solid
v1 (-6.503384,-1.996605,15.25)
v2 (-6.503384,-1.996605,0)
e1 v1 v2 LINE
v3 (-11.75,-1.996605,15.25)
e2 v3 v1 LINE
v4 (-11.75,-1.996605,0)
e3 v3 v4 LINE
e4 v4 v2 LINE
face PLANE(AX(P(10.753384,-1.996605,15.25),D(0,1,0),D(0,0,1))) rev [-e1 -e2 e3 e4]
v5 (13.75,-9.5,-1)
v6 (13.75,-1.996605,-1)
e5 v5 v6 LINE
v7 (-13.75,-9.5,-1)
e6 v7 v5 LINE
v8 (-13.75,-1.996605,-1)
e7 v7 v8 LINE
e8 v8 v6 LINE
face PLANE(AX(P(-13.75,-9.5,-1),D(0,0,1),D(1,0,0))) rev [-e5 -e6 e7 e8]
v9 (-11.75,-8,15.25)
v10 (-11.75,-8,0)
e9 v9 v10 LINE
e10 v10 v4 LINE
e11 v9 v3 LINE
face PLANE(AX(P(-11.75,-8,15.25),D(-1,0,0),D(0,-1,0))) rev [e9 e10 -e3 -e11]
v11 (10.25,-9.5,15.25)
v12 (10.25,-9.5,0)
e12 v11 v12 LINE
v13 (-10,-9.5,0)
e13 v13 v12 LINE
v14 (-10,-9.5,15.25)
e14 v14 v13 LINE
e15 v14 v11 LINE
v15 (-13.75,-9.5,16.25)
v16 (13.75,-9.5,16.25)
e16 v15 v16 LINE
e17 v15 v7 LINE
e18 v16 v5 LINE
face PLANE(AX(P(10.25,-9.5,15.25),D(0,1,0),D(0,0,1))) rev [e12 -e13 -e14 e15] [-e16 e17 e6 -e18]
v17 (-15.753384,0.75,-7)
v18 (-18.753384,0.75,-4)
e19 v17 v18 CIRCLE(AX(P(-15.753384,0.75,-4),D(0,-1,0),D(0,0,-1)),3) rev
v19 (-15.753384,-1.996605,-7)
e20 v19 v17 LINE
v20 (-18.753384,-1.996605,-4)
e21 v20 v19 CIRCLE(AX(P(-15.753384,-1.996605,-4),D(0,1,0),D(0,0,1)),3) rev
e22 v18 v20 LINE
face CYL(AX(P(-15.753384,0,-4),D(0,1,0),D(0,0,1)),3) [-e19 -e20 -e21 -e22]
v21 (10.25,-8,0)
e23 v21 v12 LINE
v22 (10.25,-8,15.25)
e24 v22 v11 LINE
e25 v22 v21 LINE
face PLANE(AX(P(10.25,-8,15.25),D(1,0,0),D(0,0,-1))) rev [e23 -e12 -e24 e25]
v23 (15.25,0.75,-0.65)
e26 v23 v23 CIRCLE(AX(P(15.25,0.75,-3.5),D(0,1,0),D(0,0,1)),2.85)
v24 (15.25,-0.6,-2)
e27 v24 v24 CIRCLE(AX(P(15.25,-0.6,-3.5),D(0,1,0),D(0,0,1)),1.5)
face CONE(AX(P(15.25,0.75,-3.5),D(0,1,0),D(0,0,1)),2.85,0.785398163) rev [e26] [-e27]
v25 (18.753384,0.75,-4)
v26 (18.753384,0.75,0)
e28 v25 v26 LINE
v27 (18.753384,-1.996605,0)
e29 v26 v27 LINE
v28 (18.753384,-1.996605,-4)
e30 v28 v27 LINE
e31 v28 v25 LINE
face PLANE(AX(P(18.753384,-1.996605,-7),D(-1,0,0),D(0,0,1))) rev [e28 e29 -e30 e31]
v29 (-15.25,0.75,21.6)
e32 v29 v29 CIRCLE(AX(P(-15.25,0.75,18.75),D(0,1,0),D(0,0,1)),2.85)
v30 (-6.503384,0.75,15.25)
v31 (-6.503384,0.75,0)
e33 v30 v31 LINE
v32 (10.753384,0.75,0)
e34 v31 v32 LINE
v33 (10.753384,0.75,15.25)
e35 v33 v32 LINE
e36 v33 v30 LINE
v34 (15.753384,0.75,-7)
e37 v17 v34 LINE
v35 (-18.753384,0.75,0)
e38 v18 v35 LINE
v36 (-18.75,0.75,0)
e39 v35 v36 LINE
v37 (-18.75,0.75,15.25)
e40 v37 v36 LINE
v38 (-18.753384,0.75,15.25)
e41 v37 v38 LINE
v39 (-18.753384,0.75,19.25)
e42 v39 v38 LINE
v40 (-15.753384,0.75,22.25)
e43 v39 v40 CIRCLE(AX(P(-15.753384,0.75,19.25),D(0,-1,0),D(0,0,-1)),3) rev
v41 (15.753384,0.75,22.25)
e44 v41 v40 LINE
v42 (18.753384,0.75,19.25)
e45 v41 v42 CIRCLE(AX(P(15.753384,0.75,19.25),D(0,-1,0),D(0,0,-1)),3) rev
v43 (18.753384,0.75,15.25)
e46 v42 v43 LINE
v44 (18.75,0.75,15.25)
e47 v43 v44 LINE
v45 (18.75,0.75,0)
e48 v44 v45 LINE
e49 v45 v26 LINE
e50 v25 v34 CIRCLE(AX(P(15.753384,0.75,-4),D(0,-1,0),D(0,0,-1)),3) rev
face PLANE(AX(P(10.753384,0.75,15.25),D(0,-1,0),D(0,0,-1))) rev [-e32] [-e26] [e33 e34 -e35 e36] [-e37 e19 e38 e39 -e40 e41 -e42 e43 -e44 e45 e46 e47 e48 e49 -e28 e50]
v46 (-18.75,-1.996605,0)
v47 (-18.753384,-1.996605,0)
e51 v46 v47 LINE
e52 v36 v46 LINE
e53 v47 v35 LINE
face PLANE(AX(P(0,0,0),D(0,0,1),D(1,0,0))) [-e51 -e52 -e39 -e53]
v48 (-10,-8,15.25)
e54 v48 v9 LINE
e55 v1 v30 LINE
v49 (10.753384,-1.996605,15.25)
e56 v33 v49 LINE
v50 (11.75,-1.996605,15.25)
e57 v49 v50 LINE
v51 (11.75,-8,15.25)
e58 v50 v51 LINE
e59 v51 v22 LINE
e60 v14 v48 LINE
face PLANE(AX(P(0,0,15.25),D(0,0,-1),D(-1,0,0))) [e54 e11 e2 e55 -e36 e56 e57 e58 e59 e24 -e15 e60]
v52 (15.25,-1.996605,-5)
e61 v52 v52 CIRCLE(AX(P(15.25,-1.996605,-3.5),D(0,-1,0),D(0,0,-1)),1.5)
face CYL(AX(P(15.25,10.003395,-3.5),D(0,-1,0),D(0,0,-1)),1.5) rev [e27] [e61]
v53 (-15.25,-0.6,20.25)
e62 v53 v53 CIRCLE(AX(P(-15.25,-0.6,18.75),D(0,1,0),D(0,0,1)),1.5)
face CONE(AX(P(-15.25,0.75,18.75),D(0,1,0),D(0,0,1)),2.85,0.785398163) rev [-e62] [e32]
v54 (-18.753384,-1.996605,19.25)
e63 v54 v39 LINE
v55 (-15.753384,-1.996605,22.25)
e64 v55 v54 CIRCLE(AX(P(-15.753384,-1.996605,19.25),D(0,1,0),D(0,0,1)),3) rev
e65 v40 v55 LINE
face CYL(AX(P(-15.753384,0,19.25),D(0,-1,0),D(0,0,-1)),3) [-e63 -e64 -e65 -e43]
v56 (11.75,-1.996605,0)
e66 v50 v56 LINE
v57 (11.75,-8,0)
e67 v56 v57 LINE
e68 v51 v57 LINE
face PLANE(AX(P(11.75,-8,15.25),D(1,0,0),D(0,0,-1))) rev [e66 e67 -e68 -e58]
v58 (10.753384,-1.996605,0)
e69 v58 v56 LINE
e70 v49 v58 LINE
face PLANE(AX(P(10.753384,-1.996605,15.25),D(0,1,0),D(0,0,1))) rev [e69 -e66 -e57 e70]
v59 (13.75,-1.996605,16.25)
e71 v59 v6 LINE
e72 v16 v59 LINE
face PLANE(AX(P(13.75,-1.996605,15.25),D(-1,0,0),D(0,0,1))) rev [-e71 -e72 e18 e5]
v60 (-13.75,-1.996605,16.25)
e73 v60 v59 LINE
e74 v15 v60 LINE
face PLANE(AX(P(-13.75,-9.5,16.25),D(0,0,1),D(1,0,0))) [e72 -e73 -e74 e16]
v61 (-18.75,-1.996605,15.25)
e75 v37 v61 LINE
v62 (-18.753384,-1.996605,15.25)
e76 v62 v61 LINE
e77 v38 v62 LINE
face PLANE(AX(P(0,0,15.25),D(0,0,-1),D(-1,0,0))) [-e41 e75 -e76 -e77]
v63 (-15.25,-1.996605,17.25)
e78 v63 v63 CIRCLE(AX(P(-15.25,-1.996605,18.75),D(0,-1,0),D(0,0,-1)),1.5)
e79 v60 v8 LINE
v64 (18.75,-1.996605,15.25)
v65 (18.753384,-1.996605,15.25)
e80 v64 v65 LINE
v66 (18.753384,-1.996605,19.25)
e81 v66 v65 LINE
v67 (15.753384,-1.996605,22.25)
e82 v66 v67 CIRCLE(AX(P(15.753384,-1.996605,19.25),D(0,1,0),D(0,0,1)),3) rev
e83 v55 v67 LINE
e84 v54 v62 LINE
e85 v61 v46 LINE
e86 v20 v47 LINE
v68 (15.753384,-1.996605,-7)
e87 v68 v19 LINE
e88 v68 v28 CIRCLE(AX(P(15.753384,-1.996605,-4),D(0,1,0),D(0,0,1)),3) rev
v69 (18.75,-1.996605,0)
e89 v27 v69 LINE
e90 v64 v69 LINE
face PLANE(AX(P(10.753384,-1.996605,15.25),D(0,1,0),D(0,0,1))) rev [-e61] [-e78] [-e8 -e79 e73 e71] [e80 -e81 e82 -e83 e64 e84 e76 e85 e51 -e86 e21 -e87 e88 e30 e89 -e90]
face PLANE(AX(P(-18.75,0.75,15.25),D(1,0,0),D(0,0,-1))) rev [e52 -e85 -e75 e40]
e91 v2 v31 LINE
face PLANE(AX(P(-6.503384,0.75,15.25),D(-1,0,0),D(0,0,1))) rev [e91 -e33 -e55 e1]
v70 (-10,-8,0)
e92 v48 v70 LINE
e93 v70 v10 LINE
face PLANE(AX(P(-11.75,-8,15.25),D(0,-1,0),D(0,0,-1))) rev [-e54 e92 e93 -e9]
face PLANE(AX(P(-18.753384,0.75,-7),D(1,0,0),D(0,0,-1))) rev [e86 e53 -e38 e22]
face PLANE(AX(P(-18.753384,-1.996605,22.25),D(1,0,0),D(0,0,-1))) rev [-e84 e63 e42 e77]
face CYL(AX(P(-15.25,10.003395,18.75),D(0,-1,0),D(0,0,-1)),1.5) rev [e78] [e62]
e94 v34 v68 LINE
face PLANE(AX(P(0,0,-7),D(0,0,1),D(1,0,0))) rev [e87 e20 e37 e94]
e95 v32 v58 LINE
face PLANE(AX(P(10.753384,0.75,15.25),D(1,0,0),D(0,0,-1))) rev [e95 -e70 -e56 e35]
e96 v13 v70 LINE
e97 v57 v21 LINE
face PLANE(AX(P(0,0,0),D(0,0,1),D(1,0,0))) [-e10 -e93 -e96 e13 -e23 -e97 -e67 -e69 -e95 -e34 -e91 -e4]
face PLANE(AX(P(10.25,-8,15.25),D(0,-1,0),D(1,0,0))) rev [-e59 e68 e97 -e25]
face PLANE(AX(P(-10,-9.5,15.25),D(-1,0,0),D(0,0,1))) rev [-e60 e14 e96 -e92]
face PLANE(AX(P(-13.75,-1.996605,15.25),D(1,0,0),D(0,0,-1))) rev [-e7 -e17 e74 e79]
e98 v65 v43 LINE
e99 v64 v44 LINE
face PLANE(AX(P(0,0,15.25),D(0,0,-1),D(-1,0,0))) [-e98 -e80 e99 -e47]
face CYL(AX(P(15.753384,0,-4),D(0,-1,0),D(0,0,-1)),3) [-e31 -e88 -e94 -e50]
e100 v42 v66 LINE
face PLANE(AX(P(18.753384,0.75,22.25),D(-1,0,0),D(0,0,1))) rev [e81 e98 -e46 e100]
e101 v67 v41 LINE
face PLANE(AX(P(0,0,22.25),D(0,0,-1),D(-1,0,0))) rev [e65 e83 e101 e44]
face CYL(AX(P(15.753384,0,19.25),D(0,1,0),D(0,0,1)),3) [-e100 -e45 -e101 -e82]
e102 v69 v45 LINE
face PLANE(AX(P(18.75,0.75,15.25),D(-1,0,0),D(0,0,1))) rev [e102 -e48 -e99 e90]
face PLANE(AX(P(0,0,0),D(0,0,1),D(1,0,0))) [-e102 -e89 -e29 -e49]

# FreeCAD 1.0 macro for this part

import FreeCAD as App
import Part
import Sketcher

V = App.Vector
Q = App.Units.Quantity


def edges_at(feature, points):
    """Names of the edges that pass closest to the given points."""
    edges = feature.Shape.Edges
    near = lambda p: min(range(len(edges)), key=lambda i: edges[i].distToShape(Part.Vertex(*p))[0])
    return sorted({f"Edge{near(p) + 1}" for p in points})

doc = App.newDocument("Part")
body = doc.addObject("PartDesign::Body", "Body")

sketch1 = doc.addObject("Sketcher::SketchObject", "Sketch")
body.addObject(sketch1)
sketch1.AttachmentSupport = (doc.XY_Plane, [""])
sketch1.MapMode = "FlatFace"
sketch1.addGeometry([
    Part.LineSegment(V(10.2, -8, 0), V(10.2, -9.5, 0)),
    Part.LineSegment(V(10.2, -9.5, 0), V(13.8, -9.5, 0)),
    Part.LineSegment(V(13.8, -9.5, 0), V(13.8, -2, 0)),
    Part.LineSegment(V(13.8, -2, 0), V(18.8, -2, 0)),
    Part.LineSegment(V(18.8, -2, 0), V(18.8, 0.8, 0)),
    Part.LineSegment(V(18.8, 0.8, 0), V(10.8, 0.8, 0)),
    Part.LineSegment(V(10.8, 0.8, 0), V(10.8, -2, 0)),
    Part.LineSegment(V(10.8, -2, 0), V(11.8, -2, 0)),
    Part.LineSegment(V(11.8, -2, 0), V(11.8, -8, 0)),
    Part.LineSegment(V(11.8, -8, 0), V(10.2, -8, 0)),
], False)
sketch1.addConstraint([
    Sketcher.Constraint("Coincident", 0, 2, 1, 1),
    Sketcher.Constraint("Coincident", 1, 2, 2, 1),
    Sketcher.Constraint("Coincident", 2, 2, 3, 1),
    Sketcher.Constraint("Coincident", 3, 2, 4, 1),
    Sketcher.Constraint("Coincident", 4, 2, 5, 1),
    Sketcher.Constraint("Coincident", 5, 2, 6, 1),
    Sketcher.Constraint("Coincident", 6, 2, 7, 1),
    Sketcher.Constraint("Coincident", 7, 2, 8, 1),
    Sketcher.Constraint("Coincident", 8, 2, 9, 1),
    Sketcher.Constraint("Coincident", 9, 2, 0, 1),
    Sketcher.Constraint("Vertical", 0),
    Sketcher.Constraint("Horizontal", 1),
    Sketcher.Constraint("Vertical", 2),
    Sketcher.Constraint("Horizontal", 3),
    Sketcher.Constraint("Vertical", 4),
    Sketcher.Constraint("Horizontal", 5),
    Sketcher.Constraint("Vertical", 6),
    Sketcher.Constraint("Horizontal", 7),
    Sketcher.Constraint("Vertical", 8),
    Sketcher.Constraint("Horizontal", 9),
    Sketcher.Constraint("Horizontal", 3, 2, 6, 2),
    Sketcher.Constraint("Equal", 9, 0),
    Sketcher.Constraint("DistanceX", 3, 1, 3, 2, Q("5 mm")),
    Sketcher.Constraint("DistanceX", 1, 1, 1, 2, Q("3.5 mm")),
    Sketcher.Constraint("DistanceX", 9, 2, 9, 1, Q("1.5 mm")),
    Sketcher.Constraint("DistanceY", 8, 2, -1, 1, Q("8 mm")),
    Sketcher.Constraint("DistanceX", -1, 1, 0, 2, Q("10.25 mm")),
    Sketcher.Constraint("DistanceY", -1, 1, 4, 2, Q("0.75 mm")),
    Sketcher.Constraint("DistanceX", 5, 2, 5, 1, Q("7.996616 mm")),
    Sketcher.Constraint("DistanceY", 2, 1, 2, 2, Q("7.503395 mm")),
])
pad1 = doc.addObject("PartDesign::Pad", "Pad")
body.addObject(pad1)
pad1.Profile = sketch1
pad1.Length = 15.25
body2 = doc.addObject("PartDesign::Body", "Body001")

sketch2 = doc.addObject("Sketcher::SketchObject", "Sketch001")
body2.addObject(sketch2)
sketch2.AttachmentSupport = (doc.getObject("XY_Plane001"), [""])
sketch2.MapMode = "FlatFace"
sketch2.addGeometry([
    Part.LineSegment(V(-10, -8, 0), V(-11.8, -8, 0)),
    Part.LineSegment(V(-11.8, -8, 0), V(-11.8, -2, 0)),
    Part.LineSegment(V(-11.8, -2, 0), V(-6.5, -2, 0)),
    Part.LineSegment(V(-6.5, -2, 0), V(-6.5, 0.8, 0)),
    Part.LineSegment(V(-6.5, 0.8, 0), V(-18.8, 0.8, 0)),
    Part.LineSegment(V(-18.8, 0.8, 0), V(-18.8, -2, 0)),
    Part.LineSegment(V(-18.8, -2, 0), V(-13.8, -2, 0)),
    Part.LineSegment(V(-13.8, -2, 0), V(-13.8, -9.5, 0)),
    Part.LineSegment(V(-13.8, -9.5, 0), V(-10, -9.5, 0)),
    Part.LineSegment(V(-10, -9.5, 0), V(-10, -8, 0)),
], False)
sketch2.addConstraint([
    Sketcher.Constraint("Coincident", 0, 2, 1, 1),
    Sketcher.Constraint("Coincident", 1, 2, 2, 1),
    Sketcher.Constraint("Coincident", 2, 2, 3, 1),
    Sketcher.Constraint("Coincident", 3, 2, 4, 1),
    Sketcher.Constraint("Coincident", 4, 2, 5, 1),
    Sketcher.Constraint("Coincident", 5, 2, 6, 1),
    Sketcher.Constraint("Coincident", 6, 2, 7, 1),
    Sketcher.Constraint("Coincident", 7, 2, 8, 1),
    Sketcher.Constraint("Coincident", 8, 2, 9, 1),
    Sketcher.Constraint("Coincident", 9, 2, 0, 1),
    Sketcher.Constraint("Horizontal", 0),
    Sketcher.Constraint("Vertical", 1),
    Sketcher.Constraint("Horizontal", 2),
    Sketcher.Constraint("Vertical", 3),
    Sketcher.Constraint("Horizontal", 4),
    Sketcher.Constraint("Vertical", 5),
    Sketcher.Constraint("Horizontal", 6),
    Sketcher.Constraint("Vertical", 7),
    Sketcher.Constraint("Horizontal", 8),
    Sketcher.Constraint("Vertical", 9),
    Sketcher.Constraint("Horizontal", 2, 2, 5, 2),
    Sketcher.Constraint("DistanceX", 6, 1, 6, 2, Q("5 mm")),
    Sketcher.Constraint("DistanceY", 9, 1, 9, 2, Q("1.5 mm")),
    Sketcher.Constraint("DistanceY", 0, 2, -1, 1, Q("8 mm")),
    Sketcher.Constraint("DistanceX", 8, 2, -1, 1, Q("10 mm")),
    Sketcher.Constraint("DistanceX", 4, 2, 1, 2, Q("7 mm")),
    Sketcher.Constraint("DistanceX", 0, 2, 0, 1, Q("1.75 mm")),
    Sketcher.Constraint("DistanceY", -1, 1, 3, 2, Q("0.75 mm")),
    Sketcher.Constraint("DistanceX", 2, 1, 2, 2, Q("5.246616 mm")),
    Sketcher.Constraint("DistanceY", 1, 1, 1, 2, Q("6.003395 mm")),
])
pad2 = doc.addObject("PartDesign::Pad", "Pad001")
body2.addObject(pad2)
pad2.Profile = sketch2
pad2.Length = 15.25
body.AllowCompound = True
doc.recompute()

boolean = doc.addObject("PartDesign::Boolean", "Boolean")
body.addObject(boolean)
boolean.Type = "Fuse"
boolean.addObjects([body2])

sketch3 = doc.addObject("Sketcher::SketchObject", "Sketch002")
body.addObject(sketch3)
sketch3.AttachmentSupport = (doc.XY_Plane, [""])
sketch3.MapMode = "FlatFace"
sketch3.AttachmentOffset = App.Placement(V(0, 0, 15.25), App.Rotation())
sketch3.addGeometry([
    Part.LineSegment(V(-18.8, 0.8, 0), V(-18.8, -2, 0)),
    Part.LineSegment(V(-18.8, -2, 0), V(18.8, -2, 0)),
    Part.LineSegment(V(18.8, -2, 0), V(18.8, 0.8, 0)),
    Part.LineSegment(V(18.8, 0.8, 0), V(-18.8, 0.8, 0)),
], False)
sketch3.addConstraint([
    Sketcher.Constraint("Coincident", 0, 2, 1, 1),
    Sketcher.Constraint("Coincident", 1, 2, 2, 1),
    Sketcher.Constraint("Coincident", 2, 2, 3, 1),
    Sketcher.Constraint("Coincident", 3, 2, 0, 1),
    Sketcher.Constraint("Vertical", 0),
    Sketcher.Constraint("Horizontal", 1),
    Sketcher.Constraint("Vertical", 2),
    Sketcher.Constraint("Horizontal", 3),
    Sketcher.Constraint("DistanceY", -1, 1, 2, 2, Q("0.75 mm")),
    Sketcher.Constraint("DistanceX", 1, 1, 1, 2, Q("37.506768 mm")),
    Sketcher.Constraint("DistanceY", 0, 2, 0, 1, Q("2.746605 mm")),
    Sketcher.Constraint("DistanceX", 0, 2, -1, 1, Q("18.753384 mm")),
])
pad3 = doc.addObject("PartDesign::Pad", "Pad002")
body.addObject(pad3)
pad3.Profile = sketch3
pad3.Length = 7

sketch4 = doc.addObject("Sketcher::SketchObject", "Sketch003")
body.addObject(sketch4)
sketch4.AttachmentSupport = (doc.XY_Plane, [""])
sketch4.MapMode = "FlatFace"
sketch4.addGeometry([
    Part.LineSegment(V(18.8, 0.8, 0), V(18.8, -2, 0)),
    Part.LineSegment(V(18.8, -2, 0), V(-18.8, -2, 0)),
    Part.LineSegment(V(-18.8, -2, 0), V(-18.8, 0.8, 0)),
    Part.LineSegment(V(-18.8, 0.8, 0), V(18.8, 0.8, 0)),
], False)
sketch4.addConstraint([
    Sketcher.Constraint("Coincident", 0, 2, 1, 1),
    Sketcher.Constraint("Coincident", 1, 2, 2, 1),
    Sketcher.Constraint("Coincident", 2, 2, 3, 1),
    Sketcher.Constraint("Coincident", 3, 2, 0, 1),
    Sketcher.Constraint("Vertical", 0),
    Sketcher.Constraint("Horizontal", 1),
    Sketcher.Constraint("Vertical", 2),
    Sketcher.Constraint("Horizontal", 3),
    Sketcher.Constraint("DistanceY", -1, 1, 2, 2, Q("0.75 mm")),
    Sketcher.Constraint("DistanceX", 1, 2, 1, 1, Q("37.506768 mm")),
    Sketcher.Constraint("DistanceY", 0, 2, 0, 1, Q("2.746605 mm")),
    Sketcher.Constraint("DistanceX", -1, 1, 0, 2, Q("18.753384 mm")),
])
pad4 = doc.addObject("PartDesign::Pad", "Pad003")
body.addObject(pad4)
pad4.Profile = sketch4
pad4.Length = 7
pad4.Reversed = True

sketch5 = doc.addObject("Sketcher::SketchObject", "Sketch004")
body.addObject(sketch5)
sketch5.AttachmentSupport = (doc.XZ_Plane, [""])
sketch5.MapMode = "FlatFace"
sketch5.AttachmentOffset = App.Placement(V(0, 0, 1.996605), App.Rotation())
sketch5.addGeometry([
    Part.Circle(V(-15.2, 18.8, 0), V(0, 0, 1), 1.5),
    Part.Circle(V(15.2, -3.5, 0), V(0, 0, 1), 1.5),
], False)
sketch5.addConstraint([
    Sketcher.Constraint("Equal", 0, 1),
    Sketcher.Constraint("Diameter", 0, Q("3 mm")),
    Sketcher.Constraint("DistanceY", 1, 3, -1, 1, Q("3.5 mm")),
    Sketcher.Constraint("DistanceX", 0, 3, 1, 3, Q("30.5 mm")),
    Sketcher.Constraint("DistanceX", 0, 3, -1, 1, Q("15.25 mm")),
    Sketcher.Constraint("DistanceY", -1, 1, 0, 3, Q("18.75 mm")),
])
pocket1 = doc.addObject("PartDesign::Pocket", "Pocket")
body.addObject(pocket1)
pocket1.Profile = sketch5
pocket1.Length = 12
doc.recompute()

fillet = doc.addObject("PartDesign::Fillet", "Fillet")
body.addObject(fillet)
fillet.Base = (pocket1, edges_at(pocket1, [
    (-18.753, -0.623, 22.25),
    (18.753, -0.623, 22.25),
    (18.753, -0.623, -7),
    (-18.753, -0.623, -7),
]))
fillet.Radius = 3

sketch6 = doc.addObject("Sketcher::SketchObject", "Sketch005")
body.addObject(sketch6)
sketch6.AttachmentSupport = (doc.YZ_Plane, [""])
sketch6.MapMode = "FlatFace"
sketch6.AttachmentOffset = App.Placement(V(0, 0, -15.25), App.Rotation())
sketch6.addGeometry([
    Part.LineSegment(V(0.8, 18.8, 0), V(0.8, 21.6, 0)),
    Part.LineSegment(V(0.8, 21.6, 0), V(-2.1, 18.8, 0)),
    Part.LineSegment(V(-2.1, 18.8, 0), V(0.8, 18.8, 0)),
], False)
sketch6.addGeometry(Part.LineSegment(V(0.8, 18.8, 0), V(-2.1, 18.8, 0)), True)
sketch6.addConstraint([
    Sketcher.Constraint("Coincident", 0, 2, 1, 1),
    Sketcher.Constraint("Coincident", 1, 2, 2, 1),
    Sketcher.Constraint("Coincident", 2, 2, 0, 1),
    Sketcher.Constraint("Vertical", 0),
    Sketcher.Constraint("Horizontal", 2),
    Sketcher.Constraint("Horizontal", 3),
    Sketcher.Constraint("Coincident", 3, 1, 2, 2),
    Sketcher.Constraint("Equal", 2, 3),
    Sketcher.Constraint("Equal", 3, 0),
    Sketcher.Constraint("DistanceX", 2, 1, 2, 2, Q("2.85 mm")),
    Sketcher.Constraint("DistanceY", -1, 1, 0, 2, Q("21.6 mm")),
    Sketcher.Constraint("DistanceX", 1, 2, -1, 1, Q("2.1 mm")),
])
groove = doc.addObject("PartDesign::Groove", "Groove")
body.addObject(groove)
groove.Profile = sketch6
groove.ReferenceAxis = (sketch6, ["Axis0"])
groove.Angle = 360

sketch7 = doc.addObject("Sketcher::SketchObject", "Sketch006")
body.addObject(sketch7)
sketch7.AttachmentSupport = (doc.YZ_Plane, [""])
sketch7.MapMode = "FlatFace"
sketch7.AttachmentOffset = App.Placement(V(0, 0, 15.25), App.Rotation())
sketch7.addGeometry([
    Part.LineSegment(V(0.8, -3.5, 0), V(0.8, -0.7, 0)),
    Part.LineSegment(V(0.8, -0.7, 0), V(-2.1, -3.5, 0)),
    Part.LineSegment(V(-2.1, -3.5, 0), V(0.8, -3.5, 0)),
], False)
sketch7.addGeometry(Part.LineSegment(V(0.8, -3.5, 0), V(-2.1, -3.5, 0)), True)
sketch7.addConstraint([
    Sketcher.Constraint("Coincident", 0, 2, 1, 1),
    Sketcher.Constraint("Coincident", 1, 2, 2, 1),
    Sketcher.Constraint("Coincident", 2, 2, 0, 1),
    Sketcher.Constraint("Vertical", 0),
    Sketcher.Constraint("Horizontal", 2),
    Sketcher.Constraint("Horizontal", 3),
    Sketcher.Constraint("Coincident", 3, 1, 2, 2),
    Sketcher.Constraint("Equal", 2, 3),
    Sketcher.Constraint("Equal", 3, 0),
    Sketcher.Constraint("DistanceX", 2, 1, 2, 2, Q("2.85 mm")),
    Sketcher.Constraint("DistanceX", 1, 2, -1, 1, Q("2.1 mm")),
    Sketcher.Constraint("DistanceY", 1, 2, -1, 1, Q("3.5 mm")),
])
groove2 = doc.addObject("PartDesign::Groove", "Groove001")
body.addObject(groove2)
groove2.Profile = sketch7
groove2.ReferenceAxis = (sketch7, ["Axis0"])
groove2.Angle = 360

sketch8 = doc.addObject("Sketcher::SketchObject", "Sketch007")
body.addObject(sketch8)
sketch8.AttachmentSupport = (doc.XZ_Plane, [""])
sketch8.MapMode = "FlatFace"
sketch8.AttachmentOffset = App.Placement(V(0, 0, 1.996605), App.Rotation())
sketch8.addGeometry([
    Part.LineSegment(V(-13.8, 16.2, 0), V(-13.8, 15.2, 0)),
    Part.LineSegment(V(-13.8, 15.2, 0), V(13.8, 15.2, 0)),
    Part.LineSegment(V(13.8, 15.2, 0), V(13.8, 16.2, 0)),
    Part.LineSegment(V(13.8, 16.2, 0), V(-13.8, 16.2, 0)),
    Part.LineSegment(V(-13.8, 0, 0), V(-13.8, -1, 0)),
    Part.LineSegment(V(-13.8, -1, 0), V(13.8, -1, 0)),
    Part.LineSegment(V(13.8, -1, 0), V(13.8, 0, 0)),
    Part.LineSegment(V(13.8, 0, 0), V(-13.8, 0, 0)),
], False)
sketch8.addConstraint([
    Sketcher.Constraint("Coincident", 0, 2, 1, 1),
    Sketcher.Constraint("Coincident", 1, 2, 2, 1),
    Sketcher.Constraint("Coincident", 2, 2, 3, 1),
    Sketcher.Constraint("Coincident", 3, 2, 0, 1),
    Sketcher.Constraint("Coincident", 4, 2, 5, 1),
    Sketcher.Constraint("Coincident", 5, 2, 6, 1),
    Sketcher.Constraint("Coincident", 6, 2, 7, 1),
    Sketcher.Constraint("Coincident", 7, 2, 4, 1),
    Sketcher.Constraint("Vertical", 0),
    Sketcher.Constraint("Horizontal", 1),
    Sketcher.Constraint("Vertical", 2),
    Sketcher.Constraint("Horizontal", 3),
    Sketcher.Constraint("Vertical", 4),
    Sketcher.Constraint("Horizontal", 5),
    Sketcher.Constraint("Vertical", 6),
    Sketcher.Constraint("Horizontal", 7),
    Sketcher.Constraint("Symmetric", 6, 2, 7, 2, -1, 1),
    Sketcher.Constraint("Vertical", 3, 2, 4, 2),
    Sketcher.Constraint("Vertical", 2, 2, 5, 2),
    Sketcher.Constraint("Equal", 2, 4),
    Sketcher.Constraint("DistanceY", 0, 2, 0, 1, Q("1 mm")),
    Sketcher.Constraint("DistanceX", 1, 1, 1, 2, Q("27.5 mm")),
    Sketcher.Constraint("DistanceY", -1, 1, 0, 2, Q("15.25 mm")),
])
pad5 = doc.addObject("PartDesign::Pad", "Pad004")
body.addObject(pad5)
pad5.Profile = sketch8
pad5.Length = 7.503395

doc.recompute()
